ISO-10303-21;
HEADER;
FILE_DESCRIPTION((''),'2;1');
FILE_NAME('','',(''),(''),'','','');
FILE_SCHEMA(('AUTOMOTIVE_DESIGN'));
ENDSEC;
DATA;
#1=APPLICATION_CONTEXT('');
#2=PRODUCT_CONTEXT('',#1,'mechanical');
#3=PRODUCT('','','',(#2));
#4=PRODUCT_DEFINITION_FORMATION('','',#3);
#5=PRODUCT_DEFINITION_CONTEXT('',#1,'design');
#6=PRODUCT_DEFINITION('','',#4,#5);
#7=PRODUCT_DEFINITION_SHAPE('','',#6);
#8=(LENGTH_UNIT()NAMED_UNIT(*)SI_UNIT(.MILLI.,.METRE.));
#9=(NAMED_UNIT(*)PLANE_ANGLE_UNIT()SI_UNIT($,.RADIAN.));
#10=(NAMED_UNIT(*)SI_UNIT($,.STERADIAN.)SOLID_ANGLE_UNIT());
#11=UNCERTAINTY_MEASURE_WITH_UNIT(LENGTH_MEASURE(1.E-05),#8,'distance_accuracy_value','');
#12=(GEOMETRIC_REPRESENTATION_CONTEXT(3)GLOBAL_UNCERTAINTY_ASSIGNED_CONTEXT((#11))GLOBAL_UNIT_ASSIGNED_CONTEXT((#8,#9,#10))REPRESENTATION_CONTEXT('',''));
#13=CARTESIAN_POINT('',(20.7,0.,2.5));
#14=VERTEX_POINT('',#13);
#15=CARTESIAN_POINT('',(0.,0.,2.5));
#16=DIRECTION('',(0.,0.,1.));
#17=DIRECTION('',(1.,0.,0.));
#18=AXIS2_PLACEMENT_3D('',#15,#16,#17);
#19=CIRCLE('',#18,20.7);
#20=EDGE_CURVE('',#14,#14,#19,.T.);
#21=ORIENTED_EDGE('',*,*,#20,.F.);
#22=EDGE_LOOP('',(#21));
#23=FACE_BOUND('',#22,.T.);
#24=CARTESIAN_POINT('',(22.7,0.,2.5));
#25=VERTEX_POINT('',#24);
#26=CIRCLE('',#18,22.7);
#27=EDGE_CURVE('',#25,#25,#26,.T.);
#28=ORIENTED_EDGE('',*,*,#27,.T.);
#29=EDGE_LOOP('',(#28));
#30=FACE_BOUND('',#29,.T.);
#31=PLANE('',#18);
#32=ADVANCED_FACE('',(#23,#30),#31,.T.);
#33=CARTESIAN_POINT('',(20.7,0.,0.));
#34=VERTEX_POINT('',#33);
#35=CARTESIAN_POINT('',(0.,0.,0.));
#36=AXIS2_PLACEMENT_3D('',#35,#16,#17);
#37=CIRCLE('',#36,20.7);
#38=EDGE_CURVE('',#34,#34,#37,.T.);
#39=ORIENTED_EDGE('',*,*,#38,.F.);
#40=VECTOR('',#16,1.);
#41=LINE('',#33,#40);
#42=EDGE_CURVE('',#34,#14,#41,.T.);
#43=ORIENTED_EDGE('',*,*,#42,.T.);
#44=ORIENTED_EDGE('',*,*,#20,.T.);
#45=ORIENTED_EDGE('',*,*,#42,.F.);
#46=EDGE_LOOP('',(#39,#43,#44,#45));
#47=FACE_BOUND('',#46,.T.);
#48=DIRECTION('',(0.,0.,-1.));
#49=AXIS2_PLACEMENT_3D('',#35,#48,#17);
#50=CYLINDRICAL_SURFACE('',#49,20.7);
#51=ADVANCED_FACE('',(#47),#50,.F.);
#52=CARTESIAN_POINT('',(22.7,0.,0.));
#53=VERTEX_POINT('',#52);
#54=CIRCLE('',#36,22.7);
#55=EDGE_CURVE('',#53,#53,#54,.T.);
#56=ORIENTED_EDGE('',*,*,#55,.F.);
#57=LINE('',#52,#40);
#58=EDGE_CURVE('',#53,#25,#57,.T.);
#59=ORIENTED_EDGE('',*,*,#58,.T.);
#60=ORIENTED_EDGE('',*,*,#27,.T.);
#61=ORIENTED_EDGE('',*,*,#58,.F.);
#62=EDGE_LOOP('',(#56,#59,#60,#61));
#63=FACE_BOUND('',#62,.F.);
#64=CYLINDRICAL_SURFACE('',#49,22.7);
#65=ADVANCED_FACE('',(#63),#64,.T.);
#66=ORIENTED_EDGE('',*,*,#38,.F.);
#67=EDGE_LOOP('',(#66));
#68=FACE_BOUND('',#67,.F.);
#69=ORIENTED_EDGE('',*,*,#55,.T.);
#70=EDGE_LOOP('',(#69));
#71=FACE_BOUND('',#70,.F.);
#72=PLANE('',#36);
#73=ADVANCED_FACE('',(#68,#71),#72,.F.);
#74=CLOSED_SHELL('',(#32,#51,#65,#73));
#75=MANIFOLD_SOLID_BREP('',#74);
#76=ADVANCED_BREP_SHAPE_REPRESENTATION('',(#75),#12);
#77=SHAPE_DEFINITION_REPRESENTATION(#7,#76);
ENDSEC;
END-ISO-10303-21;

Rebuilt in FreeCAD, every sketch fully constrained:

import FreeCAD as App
import Part
import Sketcher

V = App.Vector
Q = App.Units.Quantity

doc = App.newDocument("Part")
body = doc.addObject("PartDesign::Body", "Body")

# Sketch on XY plane
sketch1 = body.newObject("Sketcher::SketchObject", "Sketch")
sketch1.AttachmentSupport = (doc.getObject("XY_Plane"), [""])
sketch1.MapMode = "FlatFace"
sketch1.addGeometry(Part.Circle(V(0, 0, 0), V(0, 0, 1), 22.7), False)
sketch1.addGeometry(Part.Circle(V(0, 0, 0), V(0, 0, 1), 20.7), False)
sketch1.addConstraint(Sketcher.Constraint("Coincident", 0, 3, -1, 1))
sketch1.addConstraint(Sketcher.Constraint("Coincident", 1, 3, -1, 1))
sketch1.addConstraint(Sketcher.Constraint("Diameter", 0, Q("45.4 mm")))
sketch1.addConstraint(Sketcher.Constraint("Diameter", 1, Q("41.4 mm")))
pad1 = body.newObject("PartDesign::Pad", "Pad")
pad1.Profile = sketch1
pad1.Length = 2.5

doc.recompute()
